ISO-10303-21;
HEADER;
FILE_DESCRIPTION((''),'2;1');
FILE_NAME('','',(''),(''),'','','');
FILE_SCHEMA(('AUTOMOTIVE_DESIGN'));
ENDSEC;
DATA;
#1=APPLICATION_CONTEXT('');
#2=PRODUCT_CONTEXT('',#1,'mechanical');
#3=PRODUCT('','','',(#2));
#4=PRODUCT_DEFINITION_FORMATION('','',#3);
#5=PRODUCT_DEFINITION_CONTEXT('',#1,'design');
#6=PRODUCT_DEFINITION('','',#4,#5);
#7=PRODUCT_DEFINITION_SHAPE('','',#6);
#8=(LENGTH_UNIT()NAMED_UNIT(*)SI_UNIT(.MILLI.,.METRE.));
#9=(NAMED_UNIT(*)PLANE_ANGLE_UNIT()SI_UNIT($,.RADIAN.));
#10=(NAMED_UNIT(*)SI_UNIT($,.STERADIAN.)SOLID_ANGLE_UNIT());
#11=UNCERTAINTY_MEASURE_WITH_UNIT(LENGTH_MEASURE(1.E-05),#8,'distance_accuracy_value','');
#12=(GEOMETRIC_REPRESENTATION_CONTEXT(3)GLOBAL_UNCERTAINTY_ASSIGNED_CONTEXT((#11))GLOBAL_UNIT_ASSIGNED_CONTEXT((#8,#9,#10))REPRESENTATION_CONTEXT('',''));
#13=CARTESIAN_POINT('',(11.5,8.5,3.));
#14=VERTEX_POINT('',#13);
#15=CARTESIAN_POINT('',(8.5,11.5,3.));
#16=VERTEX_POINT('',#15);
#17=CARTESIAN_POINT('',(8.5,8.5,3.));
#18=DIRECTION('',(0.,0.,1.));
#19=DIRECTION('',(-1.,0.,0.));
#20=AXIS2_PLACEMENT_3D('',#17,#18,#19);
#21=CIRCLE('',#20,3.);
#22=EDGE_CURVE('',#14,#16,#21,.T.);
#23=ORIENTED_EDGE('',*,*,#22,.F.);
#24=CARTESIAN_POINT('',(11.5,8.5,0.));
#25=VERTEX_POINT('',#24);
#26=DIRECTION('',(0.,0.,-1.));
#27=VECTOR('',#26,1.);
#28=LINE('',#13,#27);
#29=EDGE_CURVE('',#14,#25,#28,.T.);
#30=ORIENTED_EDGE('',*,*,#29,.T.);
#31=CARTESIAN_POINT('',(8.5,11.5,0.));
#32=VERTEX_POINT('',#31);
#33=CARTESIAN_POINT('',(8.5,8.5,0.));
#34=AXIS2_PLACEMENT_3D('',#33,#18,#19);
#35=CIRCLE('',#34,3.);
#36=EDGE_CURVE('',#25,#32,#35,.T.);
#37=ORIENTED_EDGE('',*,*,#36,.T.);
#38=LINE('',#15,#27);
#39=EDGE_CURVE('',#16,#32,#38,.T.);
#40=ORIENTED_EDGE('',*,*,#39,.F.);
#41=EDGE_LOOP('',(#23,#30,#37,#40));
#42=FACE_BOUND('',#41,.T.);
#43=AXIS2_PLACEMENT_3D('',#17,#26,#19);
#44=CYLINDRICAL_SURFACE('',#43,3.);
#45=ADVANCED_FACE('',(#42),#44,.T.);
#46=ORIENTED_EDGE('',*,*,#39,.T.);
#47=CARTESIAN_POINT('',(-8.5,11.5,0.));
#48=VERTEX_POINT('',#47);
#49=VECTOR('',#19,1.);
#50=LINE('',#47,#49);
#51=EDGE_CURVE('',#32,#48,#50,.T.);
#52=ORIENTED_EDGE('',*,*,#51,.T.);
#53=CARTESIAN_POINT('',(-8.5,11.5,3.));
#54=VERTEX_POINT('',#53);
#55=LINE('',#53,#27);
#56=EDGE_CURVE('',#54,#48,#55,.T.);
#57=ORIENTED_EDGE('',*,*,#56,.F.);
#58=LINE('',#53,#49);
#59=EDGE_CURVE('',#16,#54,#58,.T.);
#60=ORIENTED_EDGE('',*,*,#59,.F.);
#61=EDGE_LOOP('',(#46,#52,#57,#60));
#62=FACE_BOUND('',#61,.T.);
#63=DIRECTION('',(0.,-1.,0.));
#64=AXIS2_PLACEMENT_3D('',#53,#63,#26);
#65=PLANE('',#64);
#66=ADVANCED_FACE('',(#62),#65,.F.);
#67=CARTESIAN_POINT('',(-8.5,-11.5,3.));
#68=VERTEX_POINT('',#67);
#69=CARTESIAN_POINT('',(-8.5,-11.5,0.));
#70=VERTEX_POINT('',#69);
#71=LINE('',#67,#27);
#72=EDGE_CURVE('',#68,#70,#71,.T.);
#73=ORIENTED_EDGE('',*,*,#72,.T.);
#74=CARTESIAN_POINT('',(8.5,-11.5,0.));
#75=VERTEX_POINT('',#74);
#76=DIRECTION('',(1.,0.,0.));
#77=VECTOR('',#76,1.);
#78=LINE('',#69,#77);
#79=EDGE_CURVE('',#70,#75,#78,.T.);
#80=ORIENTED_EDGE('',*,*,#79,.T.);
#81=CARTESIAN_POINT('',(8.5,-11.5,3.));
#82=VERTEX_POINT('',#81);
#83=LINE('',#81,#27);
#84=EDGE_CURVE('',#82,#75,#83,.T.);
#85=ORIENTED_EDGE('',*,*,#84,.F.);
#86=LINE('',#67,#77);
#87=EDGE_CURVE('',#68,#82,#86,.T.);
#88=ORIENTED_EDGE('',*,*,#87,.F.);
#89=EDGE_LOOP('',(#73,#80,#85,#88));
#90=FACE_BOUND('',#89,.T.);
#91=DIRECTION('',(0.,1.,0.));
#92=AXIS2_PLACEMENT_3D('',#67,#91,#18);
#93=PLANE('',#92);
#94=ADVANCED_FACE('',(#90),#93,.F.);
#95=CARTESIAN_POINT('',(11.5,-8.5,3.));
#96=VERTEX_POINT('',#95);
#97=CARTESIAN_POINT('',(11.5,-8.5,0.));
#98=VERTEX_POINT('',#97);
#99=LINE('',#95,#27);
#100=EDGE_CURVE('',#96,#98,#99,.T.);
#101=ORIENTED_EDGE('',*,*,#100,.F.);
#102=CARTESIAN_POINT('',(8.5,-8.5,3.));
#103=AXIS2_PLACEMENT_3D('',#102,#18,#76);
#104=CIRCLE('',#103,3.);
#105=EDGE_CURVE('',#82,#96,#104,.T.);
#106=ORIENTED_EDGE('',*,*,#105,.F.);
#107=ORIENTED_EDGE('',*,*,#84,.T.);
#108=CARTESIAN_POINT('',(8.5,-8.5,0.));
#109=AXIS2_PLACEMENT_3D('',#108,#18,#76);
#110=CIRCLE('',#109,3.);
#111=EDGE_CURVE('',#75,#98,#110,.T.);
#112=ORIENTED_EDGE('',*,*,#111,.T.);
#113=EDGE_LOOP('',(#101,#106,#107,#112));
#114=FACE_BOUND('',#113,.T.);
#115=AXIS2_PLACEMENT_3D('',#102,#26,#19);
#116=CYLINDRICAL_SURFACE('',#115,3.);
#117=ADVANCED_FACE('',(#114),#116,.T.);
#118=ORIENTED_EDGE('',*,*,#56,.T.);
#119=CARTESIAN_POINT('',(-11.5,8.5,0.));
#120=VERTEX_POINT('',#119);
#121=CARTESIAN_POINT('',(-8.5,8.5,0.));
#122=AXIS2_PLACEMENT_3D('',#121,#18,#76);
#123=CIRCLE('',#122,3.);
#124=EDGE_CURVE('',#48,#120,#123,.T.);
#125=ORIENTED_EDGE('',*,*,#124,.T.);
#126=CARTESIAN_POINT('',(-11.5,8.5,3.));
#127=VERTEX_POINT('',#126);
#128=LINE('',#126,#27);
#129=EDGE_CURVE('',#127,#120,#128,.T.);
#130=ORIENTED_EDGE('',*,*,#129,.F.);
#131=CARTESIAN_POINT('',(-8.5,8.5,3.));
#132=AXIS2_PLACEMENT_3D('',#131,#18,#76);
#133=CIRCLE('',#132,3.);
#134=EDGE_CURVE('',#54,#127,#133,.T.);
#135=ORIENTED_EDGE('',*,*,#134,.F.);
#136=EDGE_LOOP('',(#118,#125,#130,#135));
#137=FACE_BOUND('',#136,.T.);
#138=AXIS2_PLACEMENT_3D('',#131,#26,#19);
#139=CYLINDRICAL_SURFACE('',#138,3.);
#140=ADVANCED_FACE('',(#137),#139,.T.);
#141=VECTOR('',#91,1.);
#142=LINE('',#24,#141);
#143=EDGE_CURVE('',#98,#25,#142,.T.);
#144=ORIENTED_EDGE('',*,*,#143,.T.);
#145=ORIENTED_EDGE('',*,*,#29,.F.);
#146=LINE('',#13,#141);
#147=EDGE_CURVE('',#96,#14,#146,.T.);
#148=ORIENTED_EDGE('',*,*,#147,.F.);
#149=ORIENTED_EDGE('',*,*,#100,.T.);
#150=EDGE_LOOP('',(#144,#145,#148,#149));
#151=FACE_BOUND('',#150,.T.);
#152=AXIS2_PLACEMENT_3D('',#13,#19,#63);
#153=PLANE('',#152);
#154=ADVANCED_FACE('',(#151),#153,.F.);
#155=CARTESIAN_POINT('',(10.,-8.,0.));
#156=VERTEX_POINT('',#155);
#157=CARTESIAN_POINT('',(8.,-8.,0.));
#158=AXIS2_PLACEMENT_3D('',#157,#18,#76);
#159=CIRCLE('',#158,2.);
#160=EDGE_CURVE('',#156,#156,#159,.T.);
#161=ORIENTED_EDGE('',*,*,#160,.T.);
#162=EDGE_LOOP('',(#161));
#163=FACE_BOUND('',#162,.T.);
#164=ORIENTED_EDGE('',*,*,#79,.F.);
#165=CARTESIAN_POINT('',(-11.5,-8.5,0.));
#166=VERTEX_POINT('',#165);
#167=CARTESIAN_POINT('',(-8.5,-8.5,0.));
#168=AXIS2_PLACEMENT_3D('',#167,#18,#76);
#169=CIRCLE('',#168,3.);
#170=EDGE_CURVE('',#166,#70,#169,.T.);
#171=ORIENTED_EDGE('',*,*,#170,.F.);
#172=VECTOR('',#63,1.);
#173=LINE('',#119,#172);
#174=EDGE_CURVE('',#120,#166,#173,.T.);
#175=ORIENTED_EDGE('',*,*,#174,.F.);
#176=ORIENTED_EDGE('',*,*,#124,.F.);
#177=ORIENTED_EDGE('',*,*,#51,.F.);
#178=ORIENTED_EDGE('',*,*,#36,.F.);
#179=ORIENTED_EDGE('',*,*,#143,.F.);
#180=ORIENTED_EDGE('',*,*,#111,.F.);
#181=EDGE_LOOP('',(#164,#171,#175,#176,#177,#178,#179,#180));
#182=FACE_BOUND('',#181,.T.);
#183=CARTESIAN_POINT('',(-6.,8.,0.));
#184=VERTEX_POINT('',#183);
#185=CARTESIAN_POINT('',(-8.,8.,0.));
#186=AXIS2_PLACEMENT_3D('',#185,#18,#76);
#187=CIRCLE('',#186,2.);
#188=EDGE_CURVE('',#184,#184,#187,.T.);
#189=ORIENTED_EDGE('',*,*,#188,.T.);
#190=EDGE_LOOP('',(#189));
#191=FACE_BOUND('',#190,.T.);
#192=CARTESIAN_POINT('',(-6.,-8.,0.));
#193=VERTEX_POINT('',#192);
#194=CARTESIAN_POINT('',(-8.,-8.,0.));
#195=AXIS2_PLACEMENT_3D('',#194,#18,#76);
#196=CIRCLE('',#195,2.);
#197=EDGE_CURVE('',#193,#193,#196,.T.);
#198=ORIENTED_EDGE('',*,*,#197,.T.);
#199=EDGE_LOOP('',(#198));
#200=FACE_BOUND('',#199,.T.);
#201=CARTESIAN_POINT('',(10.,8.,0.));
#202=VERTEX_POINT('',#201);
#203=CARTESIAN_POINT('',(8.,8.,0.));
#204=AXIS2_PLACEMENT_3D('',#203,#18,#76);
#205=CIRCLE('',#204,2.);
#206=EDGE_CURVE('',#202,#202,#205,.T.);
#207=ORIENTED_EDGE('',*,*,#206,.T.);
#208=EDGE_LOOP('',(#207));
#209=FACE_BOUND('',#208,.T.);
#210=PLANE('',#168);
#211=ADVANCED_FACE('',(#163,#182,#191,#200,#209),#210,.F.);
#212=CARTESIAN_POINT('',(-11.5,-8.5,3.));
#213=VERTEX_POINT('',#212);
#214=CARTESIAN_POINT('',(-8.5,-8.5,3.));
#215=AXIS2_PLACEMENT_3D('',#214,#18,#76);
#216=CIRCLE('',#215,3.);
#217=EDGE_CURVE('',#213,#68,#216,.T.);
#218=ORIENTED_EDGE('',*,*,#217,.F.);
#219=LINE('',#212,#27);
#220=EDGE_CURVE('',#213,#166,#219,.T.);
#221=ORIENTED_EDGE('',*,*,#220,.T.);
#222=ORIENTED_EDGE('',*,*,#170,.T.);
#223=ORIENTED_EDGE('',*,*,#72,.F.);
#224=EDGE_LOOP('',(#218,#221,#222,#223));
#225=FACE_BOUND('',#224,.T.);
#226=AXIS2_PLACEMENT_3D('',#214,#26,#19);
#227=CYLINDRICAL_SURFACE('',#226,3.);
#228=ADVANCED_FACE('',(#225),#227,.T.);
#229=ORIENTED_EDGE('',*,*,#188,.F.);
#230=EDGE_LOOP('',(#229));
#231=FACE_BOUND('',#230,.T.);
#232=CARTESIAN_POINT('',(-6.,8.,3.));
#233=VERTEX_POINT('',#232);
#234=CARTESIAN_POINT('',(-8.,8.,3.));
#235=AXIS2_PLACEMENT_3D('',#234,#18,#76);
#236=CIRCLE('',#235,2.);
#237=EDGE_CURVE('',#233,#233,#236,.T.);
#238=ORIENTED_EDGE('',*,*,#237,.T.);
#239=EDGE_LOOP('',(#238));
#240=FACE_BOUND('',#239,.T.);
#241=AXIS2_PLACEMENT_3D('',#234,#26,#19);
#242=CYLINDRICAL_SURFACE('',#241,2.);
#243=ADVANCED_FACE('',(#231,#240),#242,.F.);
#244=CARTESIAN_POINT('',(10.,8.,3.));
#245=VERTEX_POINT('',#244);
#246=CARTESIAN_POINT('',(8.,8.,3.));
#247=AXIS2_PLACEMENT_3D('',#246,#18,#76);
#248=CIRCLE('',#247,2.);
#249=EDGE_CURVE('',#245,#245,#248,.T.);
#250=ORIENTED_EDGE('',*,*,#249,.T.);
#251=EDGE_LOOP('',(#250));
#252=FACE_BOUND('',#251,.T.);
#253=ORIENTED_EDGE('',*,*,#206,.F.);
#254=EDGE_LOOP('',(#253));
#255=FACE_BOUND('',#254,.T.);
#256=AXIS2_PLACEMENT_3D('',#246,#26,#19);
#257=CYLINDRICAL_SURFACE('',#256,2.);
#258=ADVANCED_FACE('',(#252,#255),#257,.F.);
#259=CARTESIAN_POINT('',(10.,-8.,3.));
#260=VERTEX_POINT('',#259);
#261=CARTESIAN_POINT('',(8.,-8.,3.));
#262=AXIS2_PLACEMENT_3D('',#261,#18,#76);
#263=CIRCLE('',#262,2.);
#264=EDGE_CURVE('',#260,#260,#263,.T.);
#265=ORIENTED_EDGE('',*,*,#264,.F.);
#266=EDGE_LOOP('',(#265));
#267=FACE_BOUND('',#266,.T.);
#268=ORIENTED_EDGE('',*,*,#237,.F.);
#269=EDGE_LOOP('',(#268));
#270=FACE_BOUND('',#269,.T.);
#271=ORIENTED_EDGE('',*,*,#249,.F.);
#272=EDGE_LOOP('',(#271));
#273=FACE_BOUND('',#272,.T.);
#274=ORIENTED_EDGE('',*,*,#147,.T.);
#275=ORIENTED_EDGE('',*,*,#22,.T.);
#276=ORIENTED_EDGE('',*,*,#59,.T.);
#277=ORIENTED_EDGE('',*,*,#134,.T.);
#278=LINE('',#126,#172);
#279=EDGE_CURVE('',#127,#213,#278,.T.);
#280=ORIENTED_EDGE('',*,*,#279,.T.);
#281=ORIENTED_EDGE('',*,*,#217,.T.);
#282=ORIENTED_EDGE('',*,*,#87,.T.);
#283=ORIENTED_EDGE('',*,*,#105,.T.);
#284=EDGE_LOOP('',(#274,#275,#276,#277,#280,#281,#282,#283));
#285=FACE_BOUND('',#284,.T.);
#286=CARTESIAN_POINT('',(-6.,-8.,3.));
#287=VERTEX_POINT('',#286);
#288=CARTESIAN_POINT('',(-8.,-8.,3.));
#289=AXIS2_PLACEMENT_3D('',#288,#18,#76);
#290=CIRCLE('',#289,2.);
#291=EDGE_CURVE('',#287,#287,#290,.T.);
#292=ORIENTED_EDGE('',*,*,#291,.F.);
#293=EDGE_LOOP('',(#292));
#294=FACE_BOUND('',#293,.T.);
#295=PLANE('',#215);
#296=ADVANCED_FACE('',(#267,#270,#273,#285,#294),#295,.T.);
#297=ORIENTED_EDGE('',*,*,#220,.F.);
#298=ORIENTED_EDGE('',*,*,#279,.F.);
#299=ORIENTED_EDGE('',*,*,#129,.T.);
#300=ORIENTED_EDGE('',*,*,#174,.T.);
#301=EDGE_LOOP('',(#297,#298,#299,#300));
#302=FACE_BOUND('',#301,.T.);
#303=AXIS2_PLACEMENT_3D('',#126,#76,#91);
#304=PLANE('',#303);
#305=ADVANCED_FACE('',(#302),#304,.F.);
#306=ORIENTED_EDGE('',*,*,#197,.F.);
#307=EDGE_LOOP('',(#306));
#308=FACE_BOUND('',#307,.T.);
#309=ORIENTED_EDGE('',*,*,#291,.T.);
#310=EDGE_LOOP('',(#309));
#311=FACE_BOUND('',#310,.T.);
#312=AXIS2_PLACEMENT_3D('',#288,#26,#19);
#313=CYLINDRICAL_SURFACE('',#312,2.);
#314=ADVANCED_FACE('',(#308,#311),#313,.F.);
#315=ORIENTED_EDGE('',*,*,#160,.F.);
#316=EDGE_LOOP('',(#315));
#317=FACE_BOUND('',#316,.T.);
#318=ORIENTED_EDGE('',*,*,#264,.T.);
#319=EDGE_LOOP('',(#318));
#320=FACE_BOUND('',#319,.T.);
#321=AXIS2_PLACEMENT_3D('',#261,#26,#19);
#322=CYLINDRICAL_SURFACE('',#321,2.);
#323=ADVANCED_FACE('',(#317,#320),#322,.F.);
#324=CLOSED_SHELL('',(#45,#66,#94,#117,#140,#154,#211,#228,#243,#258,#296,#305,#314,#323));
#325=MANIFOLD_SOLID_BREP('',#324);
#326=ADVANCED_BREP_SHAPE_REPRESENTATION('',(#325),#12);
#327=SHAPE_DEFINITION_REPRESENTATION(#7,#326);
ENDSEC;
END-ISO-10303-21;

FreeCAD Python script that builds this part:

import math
import FreeCAD as App
import Part
import Sketcher

doc = App.newDocument("Part")
body = doc.addObject("PartDesign::Body", "Body")

sketch1 = body.newObject("Sketcher::SketchObject", "Sketch")
sketch1.AttachmentSupport = (doc.getObject("XY_Plane"), [""])
sketch1.MapMode = "FlatFace"
sketch1.addGeometry([
    Part.LineSegment(App.Vector(8.5, 11.5, 0), App.Vector(-8.5, 11.5, 0)),
    Part.ArcOfCircle(Part.Circle(App.Vector(-8.5, 8.5, 0), App.Vector(0, 0, 1), 3), math.radians(90), math.radians(180)),
    Part.LineSegment(App.Vector(-11.5, 8.5, 0), App.Vector(-11.5, -8.5, 0)),
    Part.ArcOfCircle(Part.Circle(App.Vector(-8.5, -8.5, 0), App.Vector(0, 0, 1), 3), math.radians(180), math.radians(270)),
    Part.LineSegment(App.Vector(-8.5, -11.5, 0), App.Vector(8.5, -11.5, 0)),
    Part.ArcOfCircle(Part.Circle(App.Vector(8.5, -8.5, 0), App.Vector(0, 0, 1), 3), math.radians(-90), math.radians(0)),
    Part.LineSegment(App.Vector(11.5, -8.5, 0), App.Vector(11.5, 8.5, 0)),
    Part.ArcOfCircle(Part.Circle(App.Vector(8.5, 8.5, 0), App.Vector(0, 0, 1), 3), math.radians(0), math.radians(90)),
    Part.Circle(App.Vector(8, -8, 0), App.Vector(0, 0, 1), 2),
    Part.Circle(App.Vector(-8, -8, 0), App.Vector(0, 0, 1), 2),
    Part.Circle(App.Vector(8, 8, 0), App.Vector(0, 0, 1), 2),
    Part.Circle(App.Vector(-8, 8, 0), App.Vector(0, 0, 1), 2),
], False)
sketch1.addConstraint([
    Sketcher.Constraint("Tangent", 0, 2, 1, 1),
    Sketcher.Constraint("Tangent", 1, 2, 2, 1),
    Sketcher.Constraint("Tangent", 2, 2, 3, 1),
    Sketcher.Constraint("Tangent", 3, 2, 4, 1),
    Sketcher.Constraint("Tangent", 4, 2, 5, 1),
    Sketcher.Constraint("Tangent", 5, 2, 6, 1),
    Sketcher.Constraint("Tangent", 6, 2, 7, 1),
    Sketcher.Constraint("Tangent", 7, 2, 0, 1),
    Sketcher.Constraint("Horizontal", 0),
    Sketcher.Constraint("Vertical", 2),
    Sketcher.Constraint("Horizontal", 4),
    Sketcher.Constraint("Vertical", 6),
    Sketcher.Constraint("Equal", 1, 3),
    Sketcher.Constraint("Equal", 3, 5),
    Sketcher.Constraint("Equal", 5, 7),
    Sketcher.Constraint("Equal", 8, 9),
    Sketcher.Constraint("Equal", 9, 10),
    Sketcher.Constraint("Equal", 10, 11),
    Sketcher.Constraint("Symmetric", 1, 3, 5, 3, -1, 1),
    Sketcher.Constraint("Symmetric", 9, 3, 10, 3, -1, 1),
    Sketcher.Constraint("Symmetric", 8, 3, 11, 3, -1, 1),
    Sketcher.Constraint("Symmetric", 8, 3, 9, 3, -2),
    Sketcher.Constraint("Equal", 4, 2),
    Sketcher.Constraint("Diameter", 8, 4.0),
    Sketcher.Constraint("Radius", 1, 3.0),
    Sketcher.Constraint("DistanceX", 0, 2, 0, 1, 17.0),
    Sketcher.Constraint("DistanceX", -1, 1, 8, 3, 8.0),
    Sketcher.Constraint("DistanceY", 8, 3, -1, 1, 8.0),
])
pad1 = body.newObject("PartDesign::Pad", "Pad")
pad1.Profile = sketch1
pad1.Length = 3

doc.recompute()
